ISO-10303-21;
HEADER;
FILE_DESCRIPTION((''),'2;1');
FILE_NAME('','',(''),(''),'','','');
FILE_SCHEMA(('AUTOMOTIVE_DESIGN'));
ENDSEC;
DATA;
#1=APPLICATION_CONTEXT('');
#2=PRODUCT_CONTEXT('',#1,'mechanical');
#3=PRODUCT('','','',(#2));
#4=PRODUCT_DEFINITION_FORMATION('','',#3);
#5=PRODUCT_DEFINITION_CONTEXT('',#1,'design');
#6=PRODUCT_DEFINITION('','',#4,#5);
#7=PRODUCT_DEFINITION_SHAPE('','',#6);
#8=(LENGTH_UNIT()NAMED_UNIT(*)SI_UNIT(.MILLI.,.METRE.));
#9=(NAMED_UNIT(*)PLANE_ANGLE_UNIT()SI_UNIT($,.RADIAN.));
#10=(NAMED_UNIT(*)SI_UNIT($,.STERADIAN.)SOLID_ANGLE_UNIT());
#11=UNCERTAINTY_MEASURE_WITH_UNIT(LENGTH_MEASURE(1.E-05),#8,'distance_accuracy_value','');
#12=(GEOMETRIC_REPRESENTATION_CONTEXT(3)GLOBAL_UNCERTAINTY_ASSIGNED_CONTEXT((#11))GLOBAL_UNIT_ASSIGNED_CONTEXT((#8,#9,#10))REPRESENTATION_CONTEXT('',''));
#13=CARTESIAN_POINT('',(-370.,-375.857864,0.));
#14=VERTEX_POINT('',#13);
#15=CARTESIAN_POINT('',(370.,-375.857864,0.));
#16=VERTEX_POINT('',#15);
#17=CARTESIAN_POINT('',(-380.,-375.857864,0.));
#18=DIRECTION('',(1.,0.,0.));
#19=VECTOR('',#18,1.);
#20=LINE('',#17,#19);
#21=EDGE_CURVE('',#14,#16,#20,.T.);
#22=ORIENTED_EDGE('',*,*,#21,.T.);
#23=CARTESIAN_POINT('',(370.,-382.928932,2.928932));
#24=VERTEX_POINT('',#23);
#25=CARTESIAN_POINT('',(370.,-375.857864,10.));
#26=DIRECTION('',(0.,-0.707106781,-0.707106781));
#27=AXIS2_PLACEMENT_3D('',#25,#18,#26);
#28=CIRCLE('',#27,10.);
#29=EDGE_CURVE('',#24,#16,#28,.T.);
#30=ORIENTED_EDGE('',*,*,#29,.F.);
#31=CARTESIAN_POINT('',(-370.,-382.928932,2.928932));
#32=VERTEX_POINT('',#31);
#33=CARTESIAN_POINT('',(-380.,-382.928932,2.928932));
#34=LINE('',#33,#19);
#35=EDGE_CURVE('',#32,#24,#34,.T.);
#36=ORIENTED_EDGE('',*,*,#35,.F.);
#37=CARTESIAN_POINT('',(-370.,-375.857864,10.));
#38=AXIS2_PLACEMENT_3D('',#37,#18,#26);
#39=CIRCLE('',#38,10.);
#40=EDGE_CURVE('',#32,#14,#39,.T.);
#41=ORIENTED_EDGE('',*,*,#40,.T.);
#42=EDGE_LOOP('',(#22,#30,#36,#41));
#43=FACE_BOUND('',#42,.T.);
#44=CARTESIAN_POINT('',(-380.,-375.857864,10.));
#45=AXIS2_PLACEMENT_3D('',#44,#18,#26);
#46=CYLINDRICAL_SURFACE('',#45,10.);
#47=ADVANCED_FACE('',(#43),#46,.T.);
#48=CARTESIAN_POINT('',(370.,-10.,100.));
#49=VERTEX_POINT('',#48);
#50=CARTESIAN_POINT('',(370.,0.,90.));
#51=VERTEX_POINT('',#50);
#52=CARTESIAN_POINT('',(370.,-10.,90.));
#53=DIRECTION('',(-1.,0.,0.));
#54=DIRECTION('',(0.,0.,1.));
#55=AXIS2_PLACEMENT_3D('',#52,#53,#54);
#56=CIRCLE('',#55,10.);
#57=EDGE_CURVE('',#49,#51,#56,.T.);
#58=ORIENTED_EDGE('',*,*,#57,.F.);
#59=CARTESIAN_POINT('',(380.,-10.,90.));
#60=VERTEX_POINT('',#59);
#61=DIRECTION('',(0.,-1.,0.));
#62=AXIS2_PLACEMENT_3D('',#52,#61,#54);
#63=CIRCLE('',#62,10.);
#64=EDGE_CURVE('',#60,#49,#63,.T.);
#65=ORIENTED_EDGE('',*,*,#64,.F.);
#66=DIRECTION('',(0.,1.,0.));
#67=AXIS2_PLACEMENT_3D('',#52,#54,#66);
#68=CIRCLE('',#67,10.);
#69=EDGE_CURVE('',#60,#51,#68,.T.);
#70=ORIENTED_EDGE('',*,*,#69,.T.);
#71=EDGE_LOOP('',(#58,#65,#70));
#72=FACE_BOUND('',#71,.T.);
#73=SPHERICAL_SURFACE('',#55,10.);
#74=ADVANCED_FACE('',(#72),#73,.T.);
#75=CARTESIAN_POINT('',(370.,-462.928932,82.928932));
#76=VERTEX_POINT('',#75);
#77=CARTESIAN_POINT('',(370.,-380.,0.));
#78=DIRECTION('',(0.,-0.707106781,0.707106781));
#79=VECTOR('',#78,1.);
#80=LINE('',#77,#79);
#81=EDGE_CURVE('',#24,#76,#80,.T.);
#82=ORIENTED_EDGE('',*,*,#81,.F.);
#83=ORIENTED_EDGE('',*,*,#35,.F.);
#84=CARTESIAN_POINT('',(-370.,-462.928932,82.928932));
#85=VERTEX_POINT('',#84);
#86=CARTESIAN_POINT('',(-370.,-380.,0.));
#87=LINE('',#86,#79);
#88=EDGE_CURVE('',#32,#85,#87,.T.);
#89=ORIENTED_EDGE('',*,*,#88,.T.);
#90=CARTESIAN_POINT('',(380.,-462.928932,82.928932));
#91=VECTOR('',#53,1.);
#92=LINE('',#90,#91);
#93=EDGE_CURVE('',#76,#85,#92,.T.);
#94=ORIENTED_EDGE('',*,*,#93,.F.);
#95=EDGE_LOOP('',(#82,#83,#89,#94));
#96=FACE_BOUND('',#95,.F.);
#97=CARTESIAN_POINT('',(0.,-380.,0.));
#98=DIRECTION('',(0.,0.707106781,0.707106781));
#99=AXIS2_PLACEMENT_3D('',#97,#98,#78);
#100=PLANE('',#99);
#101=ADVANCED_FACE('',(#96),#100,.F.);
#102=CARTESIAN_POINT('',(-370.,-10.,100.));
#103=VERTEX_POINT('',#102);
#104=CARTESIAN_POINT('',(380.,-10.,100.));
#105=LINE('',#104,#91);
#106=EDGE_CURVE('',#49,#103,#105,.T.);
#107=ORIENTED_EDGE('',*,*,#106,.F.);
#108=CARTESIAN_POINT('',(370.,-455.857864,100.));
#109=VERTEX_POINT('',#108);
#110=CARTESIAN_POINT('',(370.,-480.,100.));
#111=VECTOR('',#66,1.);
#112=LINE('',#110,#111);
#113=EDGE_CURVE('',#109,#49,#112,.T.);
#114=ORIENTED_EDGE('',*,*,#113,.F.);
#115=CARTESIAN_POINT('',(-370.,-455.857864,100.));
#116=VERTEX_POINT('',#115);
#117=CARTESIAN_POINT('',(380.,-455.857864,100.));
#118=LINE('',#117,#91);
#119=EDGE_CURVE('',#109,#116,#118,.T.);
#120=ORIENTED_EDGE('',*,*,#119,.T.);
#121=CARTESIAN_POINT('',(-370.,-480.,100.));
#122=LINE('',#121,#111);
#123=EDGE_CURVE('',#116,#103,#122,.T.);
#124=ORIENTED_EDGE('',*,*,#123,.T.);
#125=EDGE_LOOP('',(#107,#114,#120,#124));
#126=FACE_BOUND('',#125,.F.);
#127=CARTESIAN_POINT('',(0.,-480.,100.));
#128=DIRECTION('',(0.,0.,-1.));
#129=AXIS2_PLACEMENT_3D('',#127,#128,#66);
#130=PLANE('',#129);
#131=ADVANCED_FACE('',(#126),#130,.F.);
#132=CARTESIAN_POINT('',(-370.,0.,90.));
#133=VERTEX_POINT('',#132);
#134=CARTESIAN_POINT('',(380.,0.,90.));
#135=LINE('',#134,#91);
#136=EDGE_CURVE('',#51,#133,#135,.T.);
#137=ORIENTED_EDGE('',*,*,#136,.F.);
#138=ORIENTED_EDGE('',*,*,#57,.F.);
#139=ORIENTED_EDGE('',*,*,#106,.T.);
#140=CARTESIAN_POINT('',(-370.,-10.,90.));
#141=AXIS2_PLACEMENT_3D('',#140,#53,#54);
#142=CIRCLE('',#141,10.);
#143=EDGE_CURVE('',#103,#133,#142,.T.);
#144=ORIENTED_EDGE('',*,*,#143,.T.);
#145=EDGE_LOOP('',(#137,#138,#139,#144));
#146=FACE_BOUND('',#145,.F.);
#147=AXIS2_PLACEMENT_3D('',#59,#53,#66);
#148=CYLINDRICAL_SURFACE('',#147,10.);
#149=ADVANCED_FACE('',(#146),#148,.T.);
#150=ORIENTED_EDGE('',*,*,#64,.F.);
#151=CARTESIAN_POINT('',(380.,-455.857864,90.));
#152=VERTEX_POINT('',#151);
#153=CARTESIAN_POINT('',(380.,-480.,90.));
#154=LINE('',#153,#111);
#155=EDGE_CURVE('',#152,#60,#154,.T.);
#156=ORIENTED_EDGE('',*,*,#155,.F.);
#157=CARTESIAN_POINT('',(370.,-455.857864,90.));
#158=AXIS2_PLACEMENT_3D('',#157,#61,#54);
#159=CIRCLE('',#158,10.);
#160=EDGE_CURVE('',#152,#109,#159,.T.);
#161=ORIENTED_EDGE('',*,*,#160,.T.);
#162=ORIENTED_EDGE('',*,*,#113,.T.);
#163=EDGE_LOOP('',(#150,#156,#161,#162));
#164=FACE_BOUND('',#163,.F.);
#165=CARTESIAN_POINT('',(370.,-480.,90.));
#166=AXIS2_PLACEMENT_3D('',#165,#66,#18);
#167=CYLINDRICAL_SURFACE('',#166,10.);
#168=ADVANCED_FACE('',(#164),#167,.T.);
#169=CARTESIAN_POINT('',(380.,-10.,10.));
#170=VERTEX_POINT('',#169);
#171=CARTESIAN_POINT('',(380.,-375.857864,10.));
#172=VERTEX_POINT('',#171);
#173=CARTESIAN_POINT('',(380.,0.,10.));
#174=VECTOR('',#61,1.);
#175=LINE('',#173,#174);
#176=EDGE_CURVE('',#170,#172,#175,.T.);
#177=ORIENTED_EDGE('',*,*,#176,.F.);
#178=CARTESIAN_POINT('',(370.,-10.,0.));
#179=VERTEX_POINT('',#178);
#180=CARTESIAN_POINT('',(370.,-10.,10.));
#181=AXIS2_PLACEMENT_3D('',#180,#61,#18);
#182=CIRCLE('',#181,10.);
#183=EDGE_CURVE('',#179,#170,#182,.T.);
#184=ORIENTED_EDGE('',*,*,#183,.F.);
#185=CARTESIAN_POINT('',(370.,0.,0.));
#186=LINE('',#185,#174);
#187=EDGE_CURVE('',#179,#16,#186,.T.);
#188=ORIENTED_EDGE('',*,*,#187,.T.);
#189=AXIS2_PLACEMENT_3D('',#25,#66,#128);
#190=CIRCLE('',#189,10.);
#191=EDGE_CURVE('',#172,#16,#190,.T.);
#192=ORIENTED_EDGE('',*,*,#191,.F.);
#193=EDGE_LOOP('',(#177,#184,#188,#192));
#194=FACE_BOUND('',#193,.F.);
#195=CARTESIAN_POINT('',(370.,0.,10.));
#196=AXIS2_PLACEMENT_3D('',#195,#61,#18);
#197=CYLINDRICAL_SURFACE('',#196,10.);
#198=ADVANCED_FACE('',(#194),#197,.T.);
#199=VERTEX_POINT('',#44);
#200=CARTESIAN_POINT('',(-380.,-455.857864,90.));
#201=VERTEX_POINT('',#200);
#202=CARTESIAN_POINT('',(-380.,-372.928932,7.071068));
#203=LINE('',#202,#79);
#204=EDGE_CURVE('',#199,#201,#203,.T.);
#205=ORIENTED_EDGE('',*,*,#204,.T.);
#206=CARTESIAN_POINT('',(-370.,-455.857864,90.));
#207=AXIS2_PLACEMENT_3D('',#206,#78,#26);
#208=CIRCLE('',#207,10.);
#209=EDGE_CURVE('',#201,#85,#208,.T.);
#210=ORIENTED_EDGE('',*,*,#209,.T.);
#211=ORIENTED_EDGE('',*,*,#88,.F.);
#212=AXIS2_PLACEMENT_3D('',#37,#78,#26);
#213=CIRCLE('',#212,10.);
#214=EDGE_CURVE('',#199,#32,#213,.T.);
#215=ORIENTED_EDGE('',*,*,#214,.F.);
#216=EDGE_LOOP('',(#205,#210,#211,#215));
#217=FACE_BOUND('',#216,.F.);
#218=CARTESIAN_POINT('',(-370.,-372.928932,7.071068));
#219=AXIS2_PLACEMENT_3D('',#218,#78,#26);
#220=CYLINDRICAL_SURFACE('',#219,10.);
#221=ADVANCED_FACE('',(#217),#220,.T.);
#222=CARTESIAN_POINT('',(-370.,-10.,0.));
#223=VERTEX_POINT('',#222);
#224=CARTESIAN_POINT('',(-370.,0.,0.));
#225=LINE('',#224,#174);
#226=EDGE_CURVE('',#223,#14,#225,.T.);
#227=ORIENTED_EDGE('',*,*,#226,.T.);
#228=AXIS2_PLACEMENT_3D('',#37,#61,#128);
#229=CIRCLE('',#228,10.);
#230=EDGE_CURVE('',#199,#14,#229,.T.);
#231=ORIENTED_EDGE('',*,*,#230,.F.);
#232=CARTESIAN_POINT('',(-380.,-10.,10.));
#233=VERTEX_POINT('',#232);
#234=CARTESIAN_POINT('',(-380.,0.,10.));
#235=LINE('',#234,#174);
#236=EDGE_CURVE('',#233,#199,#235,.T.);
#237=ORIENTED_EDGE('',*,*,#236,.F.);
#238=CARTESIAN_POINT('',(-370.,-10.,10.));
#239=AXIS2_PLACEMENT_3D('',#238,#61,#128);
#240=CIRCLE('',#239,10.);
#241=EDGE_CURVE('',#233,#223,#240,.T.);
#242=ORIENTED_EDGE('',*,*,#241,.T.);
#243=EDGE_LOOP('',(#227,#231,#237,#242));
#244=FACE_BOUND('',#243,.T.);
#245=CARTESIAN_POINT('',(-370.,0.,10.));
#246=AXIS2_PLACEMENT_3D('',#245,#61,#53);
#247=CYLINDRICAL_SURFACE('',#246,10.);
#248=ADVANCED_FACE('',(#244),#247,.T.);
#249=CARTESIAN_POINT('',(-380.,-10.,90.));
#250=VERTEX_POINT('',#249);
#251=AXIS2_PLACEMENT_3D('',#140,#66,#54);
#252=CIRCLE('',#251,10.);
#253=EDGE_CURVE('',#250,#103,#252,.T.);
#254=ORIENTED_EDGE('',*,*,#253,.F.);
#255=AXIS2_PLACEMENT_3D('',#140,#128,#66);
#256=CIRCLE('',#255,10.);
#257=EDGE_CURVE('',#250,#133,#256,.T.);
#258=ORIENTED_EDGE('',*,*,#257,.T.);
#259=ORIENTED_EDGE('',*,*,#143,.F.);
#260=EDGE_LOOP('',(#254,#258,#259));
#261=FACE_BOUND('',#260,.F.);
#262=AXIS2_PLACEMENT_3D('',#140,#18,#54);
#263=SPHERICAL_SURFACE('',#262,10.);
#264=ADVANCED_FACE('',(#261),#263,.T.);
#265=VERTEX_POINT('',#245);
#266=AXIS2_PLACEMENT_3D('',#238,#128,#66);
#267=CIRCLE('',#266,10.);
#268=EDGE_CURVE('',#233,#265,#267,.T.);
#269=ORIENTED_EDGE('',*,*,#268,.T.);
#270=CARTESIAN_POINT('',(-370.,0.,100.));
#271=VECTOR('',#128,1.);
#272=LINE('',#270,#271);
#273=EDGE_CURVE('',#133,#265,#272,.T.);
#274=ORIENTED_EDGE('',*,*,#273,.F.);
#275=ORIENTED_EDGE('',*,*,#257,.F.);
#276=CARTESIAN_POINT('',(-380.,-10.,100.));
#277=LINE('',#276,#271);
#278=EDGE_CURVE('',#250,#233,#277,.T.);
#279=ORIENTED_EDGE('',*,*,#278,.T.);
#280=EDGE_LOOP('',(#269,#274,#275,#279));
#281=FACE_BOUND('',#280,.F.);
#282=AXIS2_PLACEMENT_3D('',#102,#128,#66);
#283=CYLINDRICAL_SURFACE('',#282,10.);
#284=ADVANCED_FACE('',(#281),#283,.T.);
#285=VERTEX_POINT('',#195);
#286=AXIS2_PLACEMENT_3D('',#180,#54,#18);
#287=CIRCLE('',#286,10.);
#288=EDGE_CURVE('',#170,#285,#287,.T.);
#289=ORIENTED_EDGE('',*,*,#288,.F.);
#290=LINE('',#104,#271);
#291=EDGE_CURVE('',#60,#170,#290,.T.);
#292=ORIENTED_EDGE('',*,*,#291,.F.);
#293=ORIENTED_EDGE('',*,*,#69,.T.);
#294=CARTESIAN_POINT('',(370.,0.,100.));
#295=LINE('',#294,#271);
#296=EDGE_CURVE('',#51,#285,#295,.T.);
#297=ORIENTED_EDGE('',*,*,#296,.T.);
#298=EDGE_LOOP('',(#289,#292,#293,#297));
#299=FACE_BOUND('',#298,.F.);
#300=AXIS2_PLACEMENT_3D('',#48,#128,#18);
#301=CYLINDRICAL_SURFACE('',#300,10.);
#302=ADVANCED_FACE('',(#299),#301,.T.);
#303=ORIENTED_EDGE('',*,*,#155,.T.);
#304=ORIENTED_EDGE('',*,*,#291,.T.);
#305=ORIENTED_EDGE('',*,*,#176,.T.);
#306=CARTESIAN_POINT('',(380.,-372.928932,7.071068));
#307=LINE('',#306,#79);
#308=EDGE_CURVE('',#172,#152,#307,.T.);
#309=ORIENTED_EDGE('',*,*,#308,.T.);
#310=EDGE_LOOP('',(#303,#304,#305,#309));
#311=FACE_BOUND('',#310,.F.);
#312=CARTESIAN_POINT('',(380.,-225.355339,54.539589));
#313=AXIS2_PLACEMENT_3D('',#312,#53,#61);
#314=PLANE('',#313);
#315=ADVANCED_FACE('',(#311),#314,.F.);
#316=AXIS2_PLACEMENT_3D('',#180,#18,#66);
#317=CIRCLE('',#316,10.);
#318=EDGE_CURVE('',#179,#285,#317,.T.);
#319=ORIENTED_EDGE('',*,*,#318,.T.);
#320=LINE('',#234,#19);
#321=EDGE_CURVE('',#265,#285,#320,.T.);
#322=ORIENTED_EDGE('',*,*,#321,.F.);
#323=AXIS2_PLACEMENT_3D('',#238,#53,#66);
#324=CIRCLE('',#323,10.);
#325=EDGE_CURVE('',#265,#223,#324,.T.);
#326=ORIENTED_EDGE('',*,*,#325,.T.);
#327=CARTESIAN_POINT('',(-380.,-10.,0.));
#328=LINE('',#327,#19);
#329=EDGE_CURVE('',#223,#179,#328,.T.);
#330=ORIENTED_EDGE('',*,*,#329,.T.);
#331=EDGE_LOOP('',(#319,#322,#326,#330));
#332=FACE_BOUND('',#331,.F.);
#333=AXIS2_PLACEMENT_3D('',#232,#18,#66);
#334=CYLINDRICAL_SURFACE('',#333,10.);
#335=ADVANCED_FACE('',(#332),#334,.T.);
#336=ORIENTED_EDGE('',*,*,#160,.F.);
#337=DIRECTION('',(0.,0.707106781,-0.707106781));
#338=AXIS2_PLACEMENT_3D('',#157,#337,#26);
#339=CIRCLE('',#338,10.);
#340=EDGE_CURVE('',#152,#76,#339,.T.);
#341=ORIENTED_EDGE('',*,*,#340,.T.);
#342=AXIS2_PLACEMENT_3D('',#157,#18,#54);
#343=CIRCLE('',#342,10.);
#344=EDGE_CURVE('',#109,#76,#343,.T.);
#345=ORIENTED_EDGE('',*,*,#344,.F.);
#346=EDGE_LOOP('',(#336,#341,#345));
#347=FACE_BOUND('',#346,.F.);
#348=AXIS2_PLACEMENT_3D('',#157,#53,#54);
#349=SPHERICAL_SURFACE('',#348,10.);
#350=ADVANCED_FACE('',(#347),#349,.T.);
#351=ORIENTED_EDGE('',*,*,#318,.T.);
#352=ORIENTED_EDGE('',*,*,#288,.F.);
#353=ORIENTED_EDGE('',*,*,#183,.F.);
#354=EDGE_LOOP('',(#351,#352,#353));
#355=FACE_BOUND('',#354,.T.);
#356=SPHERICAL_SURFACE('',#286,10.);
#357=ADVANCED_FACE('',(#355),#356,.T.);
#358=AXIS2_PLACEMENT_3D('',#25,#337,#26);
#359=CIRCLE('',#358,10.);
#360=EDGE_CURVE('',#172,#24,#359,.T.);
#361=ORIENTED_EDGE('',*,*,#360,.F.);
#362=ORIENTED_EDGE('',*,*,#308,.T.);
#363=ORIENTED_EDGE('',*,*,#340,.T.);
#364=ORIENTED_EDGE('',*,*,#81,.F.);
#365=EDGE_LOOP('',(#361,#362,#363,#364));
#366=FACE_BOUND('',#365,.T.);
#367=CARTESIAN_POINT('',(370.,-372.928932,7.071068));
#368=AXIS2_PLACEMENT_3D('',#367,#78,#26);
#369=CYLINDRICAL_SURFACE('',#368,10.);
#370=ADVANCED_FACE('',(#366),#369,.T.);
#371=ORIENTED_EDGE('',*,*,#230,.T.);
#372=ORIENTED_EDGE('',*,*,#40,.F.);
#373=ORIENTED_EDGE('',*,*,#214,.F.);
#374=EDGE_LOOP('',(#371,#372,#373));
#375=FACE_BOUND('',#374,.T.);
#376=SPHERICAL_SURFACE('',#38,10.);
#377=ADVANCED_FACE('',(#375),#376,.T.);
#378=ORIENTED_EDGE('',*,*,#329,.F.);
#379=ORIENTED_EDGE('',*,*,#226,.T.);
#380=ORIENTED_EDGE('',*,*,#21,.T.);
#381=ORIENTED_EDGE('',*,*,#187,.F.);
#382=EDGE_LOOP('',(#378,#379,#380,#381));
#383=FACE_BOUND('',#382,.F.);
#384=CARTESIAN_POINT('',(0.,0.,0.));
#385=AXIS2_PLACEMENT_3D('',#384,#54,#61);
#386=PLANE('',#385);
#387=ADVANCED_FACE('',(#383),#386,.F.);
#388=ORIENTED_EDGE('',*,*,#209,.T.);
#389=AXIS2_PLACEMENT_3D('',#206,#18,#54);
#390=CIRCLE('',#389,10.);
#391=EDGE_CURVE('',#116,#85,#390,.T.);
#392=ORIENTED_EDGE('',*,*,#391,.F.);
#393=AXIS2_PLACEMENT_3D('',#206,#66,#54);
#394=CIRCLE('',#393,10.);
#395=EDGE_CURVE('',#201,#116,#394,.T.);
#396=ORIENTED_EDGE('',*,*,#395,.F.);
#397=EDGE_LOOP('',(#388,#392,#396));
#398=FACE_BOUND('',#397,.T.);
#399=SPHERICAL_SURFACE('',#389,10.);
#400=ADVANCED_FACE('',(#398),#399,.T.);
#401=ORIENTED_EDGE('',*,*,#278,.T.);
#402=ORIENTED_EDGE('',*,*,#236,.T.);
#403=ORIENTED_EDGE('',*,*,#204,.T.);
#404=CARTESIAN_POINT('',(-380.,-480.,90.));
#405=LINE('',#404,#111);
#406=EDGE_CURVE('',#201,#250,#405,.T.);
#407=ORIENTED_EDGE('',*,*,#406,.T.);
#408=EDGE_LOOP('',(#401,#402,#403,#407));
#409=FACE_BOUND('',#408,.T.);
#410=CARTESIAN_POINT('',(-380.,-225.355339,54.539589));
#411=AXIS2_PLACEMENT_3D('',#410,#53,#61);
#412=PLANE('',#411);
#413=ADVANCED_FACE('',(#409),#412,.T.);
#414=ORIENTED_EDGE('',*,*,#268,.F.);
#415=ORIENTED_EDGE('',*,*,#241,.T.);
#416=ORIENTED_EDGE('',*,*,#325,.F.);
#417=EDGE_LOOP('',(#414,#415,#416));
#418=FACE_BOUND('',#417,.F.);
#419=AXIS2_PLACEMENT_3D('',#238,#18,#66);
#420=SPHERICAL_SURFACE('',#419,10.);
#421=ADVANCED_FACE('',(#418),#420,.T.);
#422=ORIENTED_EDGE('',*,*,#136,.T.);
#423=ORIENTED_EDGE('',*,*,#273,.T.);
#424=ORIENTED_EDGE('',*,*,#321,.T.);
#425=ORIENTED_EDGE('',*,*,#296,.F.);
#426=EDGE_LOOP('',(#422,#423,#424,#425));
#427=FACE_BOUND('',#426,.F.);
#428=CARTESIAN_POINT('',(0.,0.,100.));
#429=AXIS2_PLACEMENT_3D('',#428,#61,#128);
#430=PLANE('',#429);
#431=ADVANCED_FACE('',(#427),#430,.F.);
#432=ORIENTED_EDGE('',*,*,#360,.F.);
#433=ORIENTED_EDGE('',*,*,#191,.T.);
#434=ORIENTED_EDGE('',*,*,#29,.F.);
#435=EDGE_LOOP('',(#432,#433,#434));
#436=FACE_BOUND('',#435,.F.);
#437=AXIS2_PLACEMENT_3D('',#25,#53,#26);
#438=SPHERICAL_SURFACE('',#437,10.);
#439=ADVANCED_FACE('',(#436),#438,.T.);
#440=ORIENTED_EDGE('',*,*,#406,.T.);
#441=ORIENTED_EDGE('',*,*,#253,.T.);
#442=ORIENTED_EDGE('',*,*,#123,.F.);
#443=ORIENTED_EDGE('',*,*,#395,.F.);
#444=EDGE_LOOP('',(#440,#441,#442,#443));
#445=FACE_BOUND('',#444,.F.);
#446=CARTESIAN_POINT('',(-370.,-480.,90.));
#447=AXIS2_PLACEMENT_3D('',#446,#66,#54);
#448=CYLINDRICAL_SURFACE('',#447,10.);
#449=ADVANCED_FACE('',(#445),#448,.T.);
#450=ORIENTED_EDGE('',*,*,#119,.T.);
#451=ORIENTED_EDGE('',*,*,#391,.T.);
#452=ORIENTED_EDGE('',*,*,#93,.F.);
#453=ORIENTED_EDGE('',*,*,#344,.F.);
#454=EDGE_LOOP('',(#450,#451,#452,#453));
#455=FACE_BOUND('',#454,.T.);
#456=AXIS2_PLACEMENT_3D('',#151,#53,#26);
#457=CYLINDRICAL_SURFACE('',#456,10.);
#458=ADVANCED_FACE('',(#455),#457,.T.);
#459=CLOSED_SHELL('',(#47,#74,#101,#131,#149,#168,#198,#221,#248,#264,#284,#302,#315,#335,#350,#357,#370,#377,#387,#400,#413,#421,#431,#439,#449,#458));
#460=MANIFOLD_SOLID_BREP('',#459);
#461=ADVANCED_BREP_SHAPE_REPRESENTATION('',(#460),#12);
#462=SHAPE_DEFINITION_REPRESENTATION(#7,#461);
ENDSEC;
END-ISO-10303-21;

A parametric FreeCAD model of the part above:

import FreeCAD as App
import Part
import Sketcher
from FreeCAD import Vector
Q = App.Units.Quantity


def add_polygon(sketch, points):
    """Adds a closed chain of lines whose ends are joined by coincident constraints."""
    first, n = sketch.GeometryCount, len(points)
    for a, b in zip(points, points[1:] + points[:1]):
        sketch.addGeometry(Part.LineSegment(App.Vector(*a, 0), App.Vector(*b, 0)), False)
    for i in range(n):
        sketch.addConstraint(Sketcher.Constraint("Coincident", first + i, 2, first + (i + 1) % n, 1))

doc = App.newDocument("Part")
body = doc.addObject("PartDesign::Body", "Body")

# Sketch on YZ plane
sketch1 = body.newObject("Sketcher::SketchObject", "Sketch")
sketch1.AttachmentSupport = (doc.getObject("YZ_Plane"), [""])
sketch1.MapMode = "FlatFace"
add_polygon(sketch1, [(-480, 100), (-380, 0), (0, 0), (0, 100)])  # lines 0-3
sketch1.addConstraint(Sketcher.Constraint("Horizontal", 1))
sketch1.addConstraint(Sketcher.Constraint("Vertical", 2))
sketch1.addConstraint(Sketcher.Constraint("Horizontal", 3))
sketch1.addConstraint(Sketcher.Constraint("Coincident", 1, 2, -1, 1))
sketch1.addConstraint(Sketcher.Constraint("DistanceX", 1, 1, 1, 2, Q("380 mm")))
sketch1.addConstraint(Sketcher.Constraint("DistanceX", 3, 2, 3, 1, Q("480 mm")))
sketch1.addConstraint(Sketcher.Constraint("DistanceY", 2, 1, 2, 2, Q("100 mm")))
pad1 = body.newObject("PartDesign::Pad", "Pad")
pad1.Profile = sketch1
pad1.Type = "TwoLengths"
pad1.Length = 380
pad1.Length2 = 380
doc.recompute()

fillet = body.newObject("PartDesign::Fillet", "Fillet")
fillet.Base = (pad1, ["Edge1"])
fillet.UseAllEdges = True
fillet.Radius = 10

doc.recompute()
